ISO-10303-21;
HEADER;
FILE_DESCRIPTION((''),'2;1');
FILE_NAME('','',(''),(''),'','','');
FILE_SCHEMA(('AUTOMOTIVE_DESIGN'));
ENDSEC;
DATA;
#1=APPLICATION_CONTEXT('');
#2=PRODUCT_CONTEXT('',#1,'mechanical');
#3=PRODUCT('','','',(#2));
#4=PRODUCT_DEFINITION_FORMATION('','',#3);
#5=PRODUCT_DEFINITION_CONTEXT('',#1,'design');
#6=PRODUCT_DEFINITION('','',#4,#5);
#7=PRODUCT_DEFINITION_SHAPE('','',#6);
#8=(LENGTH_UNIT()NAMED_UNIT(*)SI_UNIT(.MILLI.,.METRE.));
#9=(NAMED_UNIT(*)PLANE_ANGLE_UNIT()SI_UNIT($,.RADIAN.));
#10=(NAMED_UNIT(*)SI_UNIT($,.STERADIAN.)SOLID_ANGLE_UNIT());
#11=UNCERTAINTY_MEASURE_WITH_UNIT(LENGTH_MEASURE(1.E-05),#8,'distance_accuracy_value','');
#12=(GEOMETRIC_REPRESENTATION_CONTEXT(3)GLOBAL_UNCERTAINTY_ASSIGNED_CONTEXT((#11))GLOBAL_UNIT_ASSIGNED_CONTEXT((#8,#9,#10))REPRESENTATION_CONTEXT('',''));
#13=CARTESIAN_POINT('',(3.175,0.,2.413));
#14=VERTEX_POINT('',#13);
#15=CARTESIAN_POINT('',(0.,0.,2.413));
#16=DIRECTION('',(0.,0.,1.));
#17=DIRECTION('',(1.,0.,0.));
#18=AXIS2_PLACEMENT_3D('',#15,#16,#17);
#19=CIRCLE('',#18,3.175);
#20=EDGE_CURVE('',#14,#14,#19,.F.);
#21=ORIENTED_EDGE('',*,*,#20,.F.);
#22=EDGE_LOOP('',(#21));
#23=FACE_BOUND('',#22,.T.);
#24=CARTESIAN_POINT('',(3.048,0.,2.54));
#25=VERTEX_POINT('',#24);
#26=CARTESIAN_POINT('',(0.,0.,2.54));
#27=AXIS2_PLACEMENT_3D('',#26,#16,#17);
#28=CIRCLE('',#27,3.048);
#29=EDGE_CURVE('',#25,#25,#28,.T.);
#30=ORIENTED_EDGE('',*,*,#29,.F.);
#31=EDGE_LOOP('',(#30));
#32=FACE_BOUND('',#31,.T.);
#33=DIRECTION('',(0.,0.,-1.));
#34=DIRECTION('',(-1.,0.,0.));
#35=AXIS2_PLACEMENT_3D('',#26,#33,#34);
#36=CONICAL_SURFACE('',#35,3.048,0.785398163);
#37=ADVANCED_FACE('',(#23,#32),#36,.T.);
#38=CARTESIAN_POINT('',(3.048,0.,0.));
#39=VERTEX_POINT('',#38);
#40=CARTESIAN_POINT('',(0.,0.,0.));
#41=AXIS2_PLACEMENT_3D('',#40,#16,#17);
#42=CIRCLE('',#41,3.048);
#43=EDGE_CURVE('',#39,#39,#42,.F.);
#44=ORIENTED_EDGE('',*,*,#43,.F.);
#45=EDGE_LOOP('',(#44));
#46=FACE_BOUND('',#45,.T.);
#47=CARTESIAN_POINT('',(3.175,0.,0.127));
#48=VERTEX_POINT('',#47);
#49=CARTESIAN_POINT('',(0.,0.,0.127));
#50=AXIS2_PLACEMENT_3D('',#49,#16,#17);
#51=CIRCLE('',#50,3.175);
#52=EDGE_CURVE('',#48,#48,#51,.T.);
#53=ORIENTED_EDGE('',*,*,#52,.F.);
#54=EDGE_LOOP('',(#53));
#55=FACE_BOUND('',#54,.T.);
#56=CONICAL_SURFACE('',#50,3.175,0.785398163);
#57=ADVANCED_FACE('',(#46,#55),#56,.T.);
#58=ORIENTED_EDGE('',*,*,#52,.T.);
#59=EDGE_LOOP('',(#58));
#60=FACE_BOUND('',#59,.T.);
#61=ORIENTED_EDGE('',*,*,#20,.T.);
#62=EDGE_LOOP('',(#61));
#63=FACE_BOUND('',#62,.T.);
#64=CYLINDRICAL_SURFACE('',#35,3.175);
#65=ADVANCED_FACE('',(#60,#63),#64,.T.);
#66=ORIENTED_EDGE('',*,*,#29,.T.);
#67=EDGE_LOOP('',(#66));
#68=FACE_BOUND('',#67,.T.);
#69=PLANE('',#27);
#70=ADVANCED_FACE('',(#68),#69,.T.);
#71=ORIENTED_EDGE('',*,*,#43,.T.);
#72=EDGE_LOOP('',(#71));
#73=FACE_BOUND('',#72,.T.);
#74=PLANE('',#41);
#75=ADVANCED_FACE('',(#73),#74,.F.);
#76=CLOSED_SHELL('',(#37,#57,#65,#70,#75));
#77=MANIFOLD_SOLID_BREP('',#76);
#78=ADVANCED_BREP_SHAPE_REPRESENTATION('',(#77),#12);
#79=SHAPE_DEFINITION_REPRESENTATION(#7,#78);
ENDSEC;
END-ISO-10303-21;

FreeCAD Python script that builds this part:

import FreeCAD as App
import Part
import Sketcher

V = App.Vector
Q = App.Units.Quantity


def edges_at(feature, points):
    """Names of the edges that pass closest to the given points."""
    edges = feature.Shape.Edges
    near = lambda p: min(range(len(edges)), key=lambda i: edges[i].distToShape(Part.Vertex(*p))[0])
    return sorted({f"Edge{near(p) + 1}" for p in points})

doc = App.newDocument("Part")
body = doc.addObject("PartDesign::Body", "Body")

# Sketch on XY plane
sketch1 = body.newObject("Sketcher::SketchObject", "Sketch")
sketch1.AttachmentSupport = (doc.getObject("XY_Plane"), [""])
sketch1.MapMode = "FlatFace"
sketch1.addGeometry(Part.Circle(V(0, 0, 0), V(0, 0, 1), 3.2), False)
sketch1.addConstraint([
    Sketcher.Constraint("Coincident", 0, 3, -1, 1),
    Sketcher.Constraint("Diameter", 0, Q("0.25 in")),
])
pad1 = body.newObject("PartDesign::Pad", "Pad")
pad1.Profile = sketch1
pad1.Length = Q("0.1 in")
doc.recompute()

chamfer = body.newObject("PartDesign::Chamfer", "Chamfer")
chamfer.Base = (pad1, edges_at(pad1, [(-3.175, 0, 0), (-3.175, 0, 2.54)]))
chamfer.Size = Q("0.005 in")

doc.recompute()
